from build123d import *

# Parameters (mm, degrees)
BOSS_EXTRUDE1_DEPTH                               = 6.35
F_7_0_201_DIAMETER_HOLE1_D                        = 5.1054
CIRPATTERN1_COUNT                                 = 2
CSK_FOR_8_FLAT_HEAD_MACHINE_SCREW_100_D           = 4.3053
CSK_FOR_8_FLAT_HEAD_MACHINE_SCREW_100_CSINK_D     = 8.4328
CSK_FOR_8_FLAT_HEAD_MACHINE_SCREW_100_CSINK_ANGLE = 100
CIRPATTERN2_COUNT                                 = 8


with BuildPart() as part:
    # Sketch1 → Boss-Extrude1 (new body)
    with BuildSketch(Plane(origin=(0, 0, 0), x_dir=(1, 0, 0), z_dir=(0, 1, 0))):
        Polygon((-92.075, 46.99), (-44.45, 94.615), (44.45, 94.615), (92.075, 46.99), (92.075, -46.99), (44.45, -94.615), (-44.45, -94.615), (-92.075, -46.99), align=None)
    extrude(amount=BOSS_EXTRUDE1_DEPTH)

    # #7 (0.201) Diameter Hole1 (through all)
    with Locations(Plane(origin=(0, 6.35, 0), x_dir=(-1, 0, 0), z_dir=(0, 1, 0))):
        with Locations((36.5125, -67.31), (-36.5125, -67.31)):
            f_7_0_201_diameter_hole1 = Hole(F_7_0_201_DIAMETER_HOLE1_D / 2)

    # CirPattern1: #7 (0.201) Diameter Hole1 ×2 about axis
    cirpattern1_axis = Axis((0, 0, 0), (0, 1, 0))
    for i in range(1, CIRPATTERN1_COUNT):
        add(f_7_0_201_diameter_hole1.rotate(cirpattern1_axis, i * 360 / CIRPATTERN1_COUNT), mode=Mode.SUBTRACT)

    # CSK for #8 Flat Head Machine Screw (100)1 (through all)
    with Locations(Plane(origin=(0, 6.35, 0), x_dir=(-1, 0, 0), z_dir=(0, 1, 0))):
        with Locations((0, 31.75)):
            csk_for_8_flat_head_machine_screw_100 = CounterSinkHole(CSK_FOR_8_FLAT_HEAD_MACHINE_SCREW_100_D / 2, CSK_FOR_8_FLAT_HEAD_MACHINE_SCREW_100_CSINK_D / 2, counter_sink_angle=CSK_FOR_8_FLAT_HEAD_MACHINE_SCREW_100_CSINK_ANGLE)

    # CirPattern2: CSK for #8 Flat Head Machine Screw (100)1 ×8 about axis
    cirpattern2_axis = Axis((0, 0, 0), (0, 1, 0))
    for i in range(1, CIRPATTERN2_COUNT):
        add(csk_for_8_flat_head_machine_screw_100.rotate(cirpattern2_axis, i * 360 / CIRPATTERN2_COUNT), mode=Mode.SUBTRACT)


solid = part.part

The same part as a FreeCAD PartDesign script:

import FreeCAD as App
import Part
import Sketcher
from FreeCAD import Vector
Q = App.Units.Quantity

doc = App.newDocument("Part")
params = doc.addObject("Spreadsheet::Sheet", "Params")
for row, (alias, value) in enumerate([
    ("sketch1_width", "3.5 in"),
    ("sketch1_height", "3.7 in"),
    ("pad1_length", "0.25 in"),
    ("sketch2_diameter", "0.201 in"),
    ("hole_diameter", "0.201 in"),
    ("hole2_diameter", "0.1695 in"),
    ("hole2_csink_diameter", "0.332 in"),
], start=1):
    params.set(f"A{row}", alias)
    params.set(f"B{row}", "=" + value)
    params.setAlias(f"B{row}", alias)

body = doc.addObject("PartDesign::Body", "Body")

# Sketch on XZ plane
sketch1 = doc.addObject("Sketcher::SketchObject", "Sketch")
body.addObject(sketch1)
sketch1.AttachmentSupport = (doc.XZ_Plane, [""])
sketch1.MapMode = "FlatFace"
sketch1.addGeometry([
    Part.LineSegment(Vector(-44, -95, 0), Vector(-92, -47, 0)),  # 0
    Part.LineSegment(Vector(-92, -47, 0), Vector(-92, 47, 0)),  # 1
    Part.LineSegment(Vector(-92, 47, 0), Vector(-44, 95, 0)),  # 2
    Part.LineSegment(Vector(-44, 95, 0), Vector(44, 95, 0)),  # 3
    Part.LineSegment(Vector(44, 95, 0), Vector(92, 47, 0)),  # 4
    Part.LineSegment(Vector(92, 47, 0), Vector(92, -47, 0)),  # 5
    Part.LineSegment(Vector(92, -47, 0), Vector(44, -95, 0)),  # 6
    Part.LineSegment(Vector(44, -95, 0), Vector(-44, -95, 0)),  # 7
], False)
sketch1.addConstraint([
    Sketcher.Constraint("Coincident", 0, 2, 1, 1),
    Sketcher.Constraint("Coincident", 1, 2, 2, 1),
    Sketcher.Constraint("Coincident", 2, 2, 3, 1),
    Sketcher.Constraint("Coincident", 3, 2, 4, 1),
    Sketcher.Constraint("Coincident", 4, 2, 5, 1),
    Sketcher.Constraint("Coincident", 5, 2, 6, 1),
    Sketcher.Constraint("Coincident", 6, 2, 7, 1),
    Sketcher.Constraint("Coincident", 7, 2, 0, 1),
    Sketcher.Constraint("Vertical", 1),
    Sketcher.Constraint("Horizontal", 3),
    Sketcher.Constraint("Vertical", 5),
    Sketcher.Constraint("Horizontal", 7),
    Sketcher.Constraint("Symmetric", 0, 2, 4, 2, -1, 1),
    Sketcher.Constraint("Symmetric", 2, 2, 6, 2, -1, 1),
    Sketcher.Constraint("Perpendicular", 0, 2),
    Sketcher.Constraint("Perpendicular", 2, 4),
    Sketcher.Constraint("Perpendicular", 4, 6),
    Sketcher.Constraint("Horizontal", 1, 2, 4, 2),
    Sketcher.Constraint("Vertical", 3, 2, 6, 2),
    Sketcher.Constraint("DistanceX", 3, 1, 3, 2, Q("3.5 in")),
    Sketcher.Constraint("DistanceY", 1, 1, 1, 2, Q("3.7 in")),
    Sketcher.Constraint("DistanceX", 1, 2, 4, 2, Q("7.25 in")),
])
sketch1.setExpression("Constraints[19]", "Params.sketch1_width")
sketch1.setExpression("Constraints[20]", "Params.sketch1_height")
pad1 = doc.addObject("PartDesign::Pad", "Pad")
body.addObject(pad1)
pad1.Profile = sketch1
pad1.setExpression("Length", "Params.pad1_length")
pad1.Reversed = True

# Sketch on XZ plane
sketch2 = doc.addObject("Sketcher::SketchObject", "Sketch001")
body.addObject(sketch2)
sketch2.AttachmentSupport = (doc.XZ_Plane, [""])
sketch2.MapMode = "FlatFace"
sketch2.AttachmentOffset = App.Placement(Vector(0, 0, -0.25 * 25.4), App.Rotation())
sketch2.addGeometry([
    Part.Circle(Vector(-36.5, -67.3, 0), Vector(0, 0, 1), 2.6),
    Part.Circle(Vector(36.5, -67.3, 0), Vector(0, 0, 1), 2.6),
], False)
sketch2.addConstraint([
    Sketcher.Constraint("Equal", 0, 1),
    Sketcher.Constraint("Symmetric", 0, 3, 1, 3, -2),
    Sketcher.Constraint("Diameter", 0, Q("0.201 in")),
    Sketcher.Constraint("DistanceY", 0, 3, -1, 1, Q("2.65 in")),
    Sketcher.Constraint("DistanceX", 0, 3, -1, 1, Q("1.4375 in")),
])
sketch2.setExpression("Constraints[2]", "Params.sketch2_diameter")
doc.recompute()
hole = doc.addObject("PartDesign::Hole", "Hole")
body.addObject(hole)
hole.Profile = sketch2
hole.ThreadType = "None"
hole.setExpression("Diameter", "Params.hole_diameter")
hole.DepthType = "ThroughAll"
hole.Reversed = True
doc.recompute()

polarpattern = doc.addObject("PartDesign::PolarPattern", "PolarPattern")
body.addObject(polarpattern)
polarpattern.Originals = [hole]
polarpattern.Axis = (doc.Y_Axis, [""])
polarpattern.Angle = 360
polarpattern.Occurrences = 2
body.Tip = polarpattern

# Sketch on XZ plane
sketch3 = doc.addObject("Sketcher::SketchObject", "Sketch002")
body.addObject(sketch3)
sketch3.AttachmentSupport = (doc.XZ_Plane, [""])
sketch3.MapMode = "FlatFace"
sketch3.AttachmentOffset = App.Placement(Vector(0, 0, -0.25 * 25.4), App.Rotation())
sketch3.addGeometry(Part.Circle(Vector(0, 31.8, 0), Vector(0, 0, 1), 2.2), False)
sketch3.addConstraint([
    Sketcher.Constraint("PointOnObject", 0, 3, -2),
    Sketcher.Constraint("Diameter", 0, Q("0.1695 in")),
    Sketcher.Constraint("DistanceY", -1, 1, 0, 3, Q("1.25 in")),
])
doc.recompute()
hole2 = doc.addObject("PartDesign::Hole", "Hole001")
body.addObject(hole2)
hole2.Profile = sketch3
hole2.ThreadType = "None"
hole2.setExpression("Diameter", "Params.hole2_diameter")
hole2.DepthType = "ThroughAll"
hole2.HoleCutType = "Countersink"
hole2.setExpression("HoleCutDiameter", "Params.hole2_csink_diameter")
hole2.HoleCutCountersinkAngle = 100
hole2.Reversed = True
doc.recompute()

polarpattern2 = doc.addObject("PartDesign::PolarPattern", "PolarPattern001")
body.addObject(polarpattern2)
polarpattern2.Originals = [hole2]
polarpattern2.Axis = (doc.Y_Axis, [""])
polarpattern2.Angle = 360
polarpattern2.Occurrences = 8
body.Tip = polarpattern2

doc.recompute()
